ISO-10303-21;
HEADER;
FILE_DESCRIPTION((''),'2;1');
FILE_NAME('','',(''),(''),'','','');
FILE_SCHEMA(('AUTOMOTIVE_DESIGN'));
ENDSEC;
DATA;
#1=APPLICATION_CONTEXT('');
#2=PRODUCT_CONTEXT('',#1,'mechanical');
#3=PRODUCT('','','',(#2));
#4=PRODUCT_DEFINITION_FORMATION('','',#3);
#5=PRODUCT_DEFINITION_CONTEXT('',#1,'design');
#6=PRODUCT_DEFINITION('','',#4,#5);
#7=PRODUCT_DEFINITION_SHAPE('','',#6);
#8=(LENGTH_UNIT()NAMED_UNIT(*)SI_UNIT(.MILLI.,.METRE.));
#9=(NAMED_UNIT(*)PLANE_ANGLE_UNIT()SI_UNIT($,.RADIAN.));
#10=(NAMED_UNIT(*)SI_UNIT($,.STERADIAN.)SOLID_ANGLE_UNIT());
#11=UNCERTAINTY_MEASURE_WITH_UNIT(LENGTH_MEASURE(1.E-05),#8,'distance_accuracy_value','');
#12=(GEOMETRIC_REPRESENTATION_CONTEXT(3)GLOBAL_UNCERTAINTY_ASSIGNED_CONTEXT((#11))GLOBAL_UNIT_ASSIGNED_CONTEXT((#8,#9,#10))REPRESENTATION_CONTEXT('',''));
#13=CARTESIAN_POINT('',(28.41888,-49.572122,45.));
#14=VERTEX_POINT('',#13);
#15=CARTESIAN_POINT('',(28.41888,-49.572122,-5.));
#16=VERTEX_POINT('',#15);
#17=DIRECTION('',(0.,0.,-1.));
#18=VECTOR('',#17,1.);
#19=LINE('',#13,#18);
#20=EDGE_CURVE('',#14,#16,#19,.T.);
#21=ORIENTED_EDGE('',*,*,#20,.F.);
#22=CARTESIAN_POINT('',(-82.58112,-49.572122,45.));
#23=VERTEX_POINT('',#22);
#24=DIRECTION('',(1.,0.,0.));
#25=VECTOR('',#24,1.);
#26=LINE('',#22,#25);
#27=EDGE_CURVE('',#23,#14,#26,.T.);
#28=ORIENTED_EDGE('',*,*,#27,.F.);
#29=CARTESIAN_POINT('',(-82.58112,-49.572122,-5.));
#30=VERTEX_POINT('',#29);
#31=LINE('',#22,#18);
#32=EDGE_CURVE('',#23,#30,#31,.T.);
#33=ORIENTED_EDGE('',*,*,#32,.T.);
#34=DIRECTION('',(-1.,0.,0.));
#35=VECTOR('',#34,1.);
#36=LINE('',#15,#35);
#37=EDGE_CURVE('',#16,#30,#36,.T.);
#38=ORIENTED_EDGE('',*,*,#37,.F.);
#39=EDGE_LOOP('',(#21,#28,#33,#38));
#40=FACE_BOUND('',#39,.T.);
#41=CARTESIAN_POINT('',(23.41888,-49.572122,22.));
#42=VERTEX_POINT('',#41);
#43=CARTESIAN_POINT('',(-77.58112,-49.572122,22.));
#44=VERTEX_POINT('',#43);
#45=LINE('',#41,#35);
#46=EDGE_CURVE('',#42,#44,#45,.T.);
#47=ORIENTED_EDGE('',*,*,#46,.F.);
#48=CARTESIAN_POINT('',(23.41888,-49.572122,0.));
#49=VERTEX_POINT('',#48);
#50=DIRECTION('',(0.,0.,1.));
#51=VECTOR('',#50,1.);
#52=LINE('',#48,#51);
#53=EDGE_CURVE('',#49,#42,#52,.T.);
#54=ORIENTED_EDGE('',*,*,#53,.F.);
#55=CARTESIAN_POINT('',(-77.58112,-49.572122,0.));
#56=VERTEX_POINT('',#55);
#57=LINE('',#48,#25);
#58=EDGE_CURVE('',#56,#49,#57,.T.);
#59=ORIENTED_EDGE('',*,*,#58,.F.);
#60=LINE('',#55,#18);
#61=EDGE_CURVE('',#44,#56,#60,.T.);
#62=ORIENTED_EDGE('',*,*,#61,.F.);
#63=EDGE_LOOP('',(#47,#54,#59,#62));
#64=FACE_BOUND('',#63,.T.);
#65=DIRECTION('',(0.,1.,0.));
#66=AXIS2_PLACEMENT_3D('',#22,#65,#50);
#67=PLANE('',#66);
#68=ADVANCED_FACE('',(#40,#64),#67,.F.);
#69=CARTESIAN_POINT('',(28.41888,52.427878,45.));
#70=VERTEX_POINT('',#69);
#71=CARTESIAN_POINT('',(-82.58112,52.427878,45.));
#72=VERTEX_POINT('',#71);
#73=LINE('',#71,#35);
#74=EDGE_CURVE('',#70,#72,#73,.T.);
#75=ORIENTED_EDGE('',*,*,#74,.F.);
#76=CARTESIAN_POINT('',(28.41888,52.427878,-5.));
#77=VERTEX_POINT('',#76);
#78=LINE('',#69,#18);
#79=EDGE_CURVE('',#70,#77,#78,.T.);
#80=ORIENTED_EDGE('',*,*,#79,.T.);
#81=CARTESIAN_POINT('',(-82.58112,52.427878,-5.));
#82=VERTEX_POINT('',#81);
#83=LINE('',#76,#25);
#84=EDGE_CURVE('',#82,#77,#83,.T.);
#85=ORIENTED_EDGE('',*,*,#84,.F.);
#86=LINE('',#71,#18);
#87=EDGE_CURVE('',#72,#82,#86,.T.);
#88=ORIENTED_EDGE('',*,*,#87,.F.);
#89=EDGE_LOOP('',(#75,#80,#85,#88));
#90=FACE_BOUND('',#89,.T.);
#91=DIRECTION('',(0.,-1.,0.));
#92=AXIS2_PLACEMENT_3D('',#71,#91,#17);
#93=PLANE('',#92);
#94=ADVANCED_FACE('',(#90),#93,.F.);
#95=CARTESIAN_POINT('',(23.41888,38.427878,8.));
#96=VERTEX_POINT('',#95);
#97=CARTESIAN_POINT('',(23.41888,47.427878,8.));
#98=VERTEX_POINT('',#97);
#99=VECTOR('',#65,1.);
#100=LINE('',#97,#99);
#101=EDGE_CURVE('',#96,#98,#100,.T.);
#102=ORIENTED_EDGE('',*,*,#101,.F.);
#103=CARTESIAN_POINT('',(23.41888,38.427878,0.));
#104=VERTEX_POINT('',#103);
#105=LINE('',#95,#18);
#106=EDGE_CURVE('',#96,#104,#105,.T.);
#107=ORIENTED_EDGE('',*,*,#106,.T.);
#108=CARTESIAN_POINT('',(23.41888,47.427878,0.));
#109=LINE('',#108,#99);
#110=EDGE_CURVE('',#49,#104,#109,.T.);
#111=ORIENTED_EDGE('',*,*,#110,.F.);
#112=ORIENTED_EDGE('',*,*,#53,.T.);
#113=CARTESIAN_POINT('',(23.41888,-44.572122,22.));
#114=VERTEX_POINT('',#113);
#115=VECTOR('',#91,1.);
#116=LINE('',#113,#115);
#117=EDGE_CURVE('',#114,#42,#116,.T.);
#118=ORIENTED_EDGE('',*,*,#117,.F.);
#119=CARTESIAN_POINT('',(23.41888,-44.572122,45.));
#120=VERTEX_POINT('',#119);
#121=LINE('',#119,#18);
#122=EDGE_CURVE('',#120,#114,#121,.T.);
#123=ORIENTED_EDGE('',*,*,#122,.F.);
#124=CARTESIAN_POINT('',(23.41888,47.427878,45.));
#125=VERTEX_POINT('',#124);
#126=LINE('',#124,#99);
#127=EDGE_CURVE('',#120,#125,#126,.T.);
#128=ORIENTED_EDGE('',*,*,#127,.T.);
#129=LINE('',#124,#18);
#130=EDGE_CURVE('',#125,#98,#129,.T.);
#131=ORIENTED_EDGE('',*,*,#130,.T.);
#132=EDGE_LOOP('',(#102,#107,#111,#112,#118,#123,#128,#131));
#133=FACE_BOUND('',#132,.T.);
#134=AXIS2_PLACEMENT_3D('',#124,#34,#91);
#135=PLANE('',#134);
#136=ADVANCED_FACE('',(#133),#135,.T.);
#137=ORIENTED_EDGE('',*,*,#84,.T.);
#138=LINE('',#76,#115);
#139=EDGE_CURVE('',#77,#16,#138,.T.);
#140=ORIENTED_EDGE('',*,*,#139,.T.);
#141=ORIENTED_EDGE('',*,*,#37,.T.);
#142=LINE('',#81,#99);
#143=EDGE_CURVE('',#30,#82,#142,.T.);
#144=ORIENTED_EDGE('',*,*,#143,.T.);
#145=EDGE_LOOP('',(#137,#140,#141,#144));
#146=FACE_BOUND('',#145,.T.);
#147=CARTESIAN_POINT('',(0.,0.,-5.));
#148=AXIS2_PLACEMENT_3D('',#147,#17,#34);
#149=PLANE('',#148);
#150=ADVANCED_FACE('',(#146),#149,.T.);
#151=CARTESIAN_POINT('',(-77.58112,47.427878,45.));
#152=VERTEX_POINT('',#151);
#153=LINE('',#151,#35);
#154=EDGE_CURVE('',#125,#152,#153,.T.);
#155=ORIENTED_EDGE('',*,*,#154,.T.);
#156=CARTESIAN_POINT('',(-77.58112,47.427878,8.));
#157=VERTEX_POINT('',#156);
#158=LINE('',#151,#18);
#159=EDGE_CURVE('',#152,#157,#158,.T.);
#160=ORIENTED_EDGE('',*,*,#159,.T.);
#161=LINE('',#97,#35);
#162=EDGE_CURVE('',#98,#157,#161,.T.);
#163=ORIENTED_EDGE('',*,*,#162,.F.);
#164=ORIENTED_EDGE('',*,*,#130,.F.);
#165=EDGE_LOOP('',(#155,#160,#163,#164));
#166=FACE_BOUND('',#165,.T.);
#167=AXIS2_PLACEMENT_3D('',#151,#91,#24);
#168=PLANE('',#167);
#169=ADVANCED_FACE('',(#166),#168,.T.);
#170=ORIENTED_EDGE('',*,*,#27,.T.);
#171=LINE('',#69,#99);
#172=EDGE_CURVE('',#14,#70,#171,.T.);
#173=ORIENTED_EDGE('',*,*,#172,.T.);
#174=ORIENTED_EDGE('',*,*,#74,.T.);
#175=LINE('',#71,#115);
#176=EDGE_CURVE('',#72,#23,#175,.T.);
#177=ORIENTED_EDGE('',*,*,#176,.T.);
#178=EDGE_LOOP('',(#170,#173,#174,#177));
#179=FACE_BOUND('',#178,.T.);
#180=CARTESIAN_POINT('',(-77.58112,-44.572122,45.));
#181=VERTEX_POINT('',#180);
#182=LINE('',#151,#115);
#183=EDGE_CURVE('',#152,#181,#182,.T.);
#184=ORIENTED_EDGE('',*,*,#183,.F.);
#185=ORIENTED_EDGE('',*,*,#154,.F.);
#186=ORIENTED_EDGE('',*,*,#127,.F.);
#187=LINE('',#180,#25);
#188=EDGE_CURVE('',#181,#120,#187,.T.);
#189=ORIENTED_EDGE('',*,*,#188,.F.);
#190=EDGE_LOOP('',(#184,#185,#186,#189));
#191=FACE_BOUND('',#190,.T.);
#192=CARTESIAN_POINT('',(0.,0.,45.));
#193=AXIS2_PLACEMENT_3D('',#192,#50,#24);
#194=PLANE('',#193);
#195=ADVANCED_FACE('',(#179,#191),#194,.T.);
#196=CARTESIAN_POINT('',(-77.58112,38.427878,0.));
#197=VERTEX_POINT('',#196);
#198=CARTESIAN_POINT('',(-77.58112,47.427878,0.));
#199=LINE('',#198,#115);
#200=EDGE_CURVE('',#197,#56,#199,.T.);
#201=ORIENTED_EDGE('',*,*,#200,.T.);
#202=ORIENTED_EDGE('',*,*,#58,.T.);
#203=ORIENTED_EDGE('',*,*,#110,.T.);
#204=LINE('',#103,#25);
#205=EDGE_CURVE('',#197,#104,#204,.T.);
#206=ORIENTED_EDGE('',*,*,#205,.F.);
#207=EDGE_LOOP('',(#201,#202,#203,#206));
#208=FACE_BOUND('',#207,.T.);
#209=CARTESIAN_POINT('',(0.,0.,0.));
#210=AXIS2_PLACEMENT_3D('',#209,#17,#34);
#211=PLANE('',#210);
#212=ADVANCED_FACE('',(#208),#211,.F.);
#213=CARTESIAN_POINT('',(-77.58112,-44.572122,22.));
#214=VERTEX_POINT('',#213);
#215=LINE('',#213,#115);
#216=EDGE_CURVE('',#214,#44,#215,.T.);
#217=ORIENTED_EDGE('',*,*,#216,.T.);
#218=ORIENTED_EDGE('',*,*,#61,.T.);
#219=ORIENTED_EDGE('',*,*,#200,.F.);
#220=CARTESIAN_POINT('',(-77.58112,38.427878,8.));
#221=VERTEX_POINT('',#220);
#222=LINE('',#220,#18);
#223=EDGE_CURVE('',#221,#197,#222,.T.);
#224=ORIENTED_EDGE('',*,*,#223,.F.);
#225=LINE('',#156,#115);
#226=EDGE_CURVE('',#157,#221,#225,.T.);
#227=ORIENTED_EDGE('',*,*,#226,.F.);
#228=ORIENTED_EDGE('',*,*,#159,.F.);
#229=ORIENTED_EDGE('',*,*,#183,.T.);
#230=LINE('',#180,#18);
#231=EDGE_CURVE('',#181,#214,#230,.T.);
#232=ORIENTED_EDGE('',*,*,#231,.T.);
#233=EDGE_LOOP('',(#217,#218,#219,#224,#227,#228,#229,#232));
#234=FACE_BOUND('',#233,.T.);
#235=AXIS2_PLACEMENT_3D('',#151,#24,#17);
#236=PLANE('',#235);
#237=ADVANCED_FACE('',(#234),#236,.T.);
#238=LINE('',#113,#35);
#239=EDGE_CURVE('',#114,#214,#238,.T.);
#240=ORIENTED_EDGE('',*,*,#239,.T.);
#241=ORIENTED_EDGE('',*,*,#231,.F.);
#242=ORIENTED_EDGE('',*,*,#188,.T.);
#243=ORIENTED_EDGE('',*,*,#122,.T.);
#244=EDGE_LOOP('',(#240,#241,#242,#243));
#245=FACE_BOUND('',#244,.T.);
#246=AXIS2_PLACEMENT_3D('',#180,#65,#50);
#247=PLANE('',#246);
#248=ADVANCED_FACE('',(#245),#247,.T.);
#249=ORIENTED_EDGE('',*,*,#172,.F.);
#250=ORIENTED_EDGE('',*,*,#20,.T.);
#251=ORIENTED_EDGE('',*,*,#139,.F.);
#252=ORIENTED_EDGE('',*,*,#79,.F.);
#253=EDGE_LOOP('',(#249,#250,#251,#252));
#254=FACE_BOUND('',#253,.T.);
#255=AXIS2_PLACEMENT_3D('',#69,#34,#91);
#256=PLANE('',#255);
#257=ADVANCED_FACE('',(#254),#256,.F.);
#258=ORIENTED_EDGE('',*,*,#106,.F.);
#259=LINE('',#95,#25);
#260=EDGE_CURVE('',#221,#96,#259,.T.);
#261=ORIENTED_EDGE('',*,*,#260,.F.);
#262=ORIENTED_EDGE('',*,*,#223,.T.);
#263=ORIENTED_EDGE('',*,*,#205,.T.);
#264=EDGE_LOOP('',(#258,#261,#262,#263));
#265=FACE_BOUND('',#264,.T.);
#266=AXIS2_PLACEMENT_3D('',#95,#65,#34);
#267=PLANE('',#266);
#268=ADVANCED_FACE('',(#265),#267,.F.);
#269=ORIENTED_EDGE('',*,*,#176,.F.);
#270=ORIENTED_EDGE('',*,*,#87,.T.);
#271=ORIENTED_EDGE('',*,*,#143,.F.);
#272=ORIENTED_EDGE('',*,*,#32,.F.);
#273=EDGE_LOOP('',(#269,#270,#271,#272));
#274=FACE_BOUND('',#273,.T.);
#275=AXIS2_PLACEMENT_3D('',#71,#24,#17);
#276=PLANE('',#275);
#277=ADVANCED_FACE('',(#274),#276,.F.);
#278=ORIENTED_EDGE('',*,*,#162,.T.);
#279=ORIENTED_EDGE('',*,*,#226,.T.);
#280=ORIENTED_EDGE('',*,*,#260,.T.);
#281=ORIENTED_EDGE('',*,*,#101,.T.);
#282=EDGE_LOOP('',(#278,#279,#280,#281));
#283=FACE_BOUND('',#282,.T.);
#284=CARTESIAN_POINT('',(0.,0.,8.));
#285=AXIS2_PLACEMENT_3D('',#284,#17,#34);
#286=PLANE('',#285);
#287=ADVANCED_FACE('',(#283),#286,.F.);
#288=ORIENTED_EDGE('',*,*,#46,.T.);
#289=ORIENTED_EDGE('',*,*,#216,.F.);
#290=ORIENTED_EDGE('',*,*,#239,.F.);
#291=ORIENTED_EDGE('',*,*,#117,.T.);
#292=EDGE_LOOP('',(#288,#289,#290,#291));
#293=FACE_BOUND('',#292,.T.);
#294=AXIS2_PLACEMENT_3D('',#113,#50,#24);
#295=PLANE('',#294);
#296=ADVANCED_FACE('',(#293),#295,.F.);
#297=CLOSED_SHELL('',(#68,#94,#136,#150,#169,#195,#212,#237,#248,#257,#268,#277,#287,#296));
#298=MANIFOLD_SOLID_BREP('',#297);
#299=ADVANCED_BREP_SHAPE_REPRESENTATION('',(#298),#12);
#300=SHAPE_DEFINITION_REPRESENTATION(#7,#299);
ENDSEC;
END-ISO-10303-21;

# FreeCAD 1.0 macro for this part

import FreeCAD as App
import Part
import Sketcher

V = App.Vector
Q = App.Units.Quantity


def add_polygon(sketch, points):
    """Adds a closed chain of lines whose ends are joined by coincident constraints."""
    first, n = sketch.GeometryCount, len(points)
    for a, b in zip(points, points[1:] + points[:1]):
        sketch.addGeometry(Part.LineSegment(App.Vector(*a, 0), App.Vector(*b, 0)), False)
    for i in range(n):
        sketch.addConstraint(Sketcher.Constraint("Coincident", first + i, 2, first + (i + 1) % n, 1))

doc = App.newDocument("Part")
body = doc.addObject("PartDesign::Body", "Body")

sketch1 = doc.addObject("Sketcher::SketchObject", "Sketch")
body.addObject(sketch1)
sketch1.AttachmentSupport = (doc.XY_Plane, [""])
sketch1.MapMode = "FlatFace"
add_polygon(sketch1, [(-83, 52), (-83, -50), (28, -50), (28, 52)])
add_polygon(sketch1, [(23, -45), (-78, -45), (-78, 47), (23, 47)])
sketch1.addConstraint(Sketcher.Constraint("Vertical", 0))
sketch1.addConstraint(Sketcher.Constraint("Horizontal", 1))
sketch1.addConstraint(Sketcher.Constraint("Vertical", 2))
sketch1.addConstraint(Sketcher.Constraint("Horizontal", 3))
sketch1.addConstraint(Sketcher.Constraint("Horizontal", 4))
sketch1.addConstraint(Sketcher.Constraint("Vertical", 5))
sketch1.addConstraint(Sketcher.Constraint("Horizontal", 6))
sketch1.addConstraint(Sketcher.Constraint("Vertical", 7))
sketch1.addConstraint(Sketcher.Constraint("DistanceX", 1, 1, 1, 2, Q("111 mm")))
sketch1.addConstraint(Sketcher.Constraint("DistanceX", 4, 2, 4, 1, Q("101 mm")))
sketch1.addConstraint(Sketcher.Constraint("DistanceY", 0, 2, 0, 1, Q("102 mm")))
sketch1.addConstraint(Sketcher.Constraint("DistanceY", 5, 1, 5, 2, Q("92 mm")))
sketch1.addConstraint(Sketcher.Constraint("DistanceX", 0, 2, 4, 2, Q("5 mm")))
sketch1.addConstraint(Sketcher.Constraint("DistanceY", 0, 2, 4, 2, Q("5 mm")))
sketch1.addConstraint(Sketcher.Constraint("DistanceX", 0, 2, -1, 1, Q("82.58112 mm")))
sketch1.addConstraint(Sketcher.Constraint("DistanceY", 0, 2, -1, 1, Q("49.572122 mm")))
pad1 = doc.addObject("PartDesign::Pad", "Pad")
body.addObject(pad1)
pad1.Profile = sketch1
pad1.Length = 45

sketch2 = doc.addObject("Sketcher::SketchObject", "Sketch001")
body.addObject(sketch2)
sketch2.AttachmentSupport = (doc.XY_Plane, [""])
sketch2.MapMode = "FlatFace"
add_polygon(sketch2, [(28, 52), (28, -50), (-83, -50), (-83, 52)])
sketch2.addConstraint(Sketcher.Constraint("Vertical", 0))
sketch2.addConstraint(Sketcher.Constraint("Horizontal", 1))
sketch2.addConstraint(Sketcher.Constraint("Vertical", 2))
sketch2.addConstraint(Sketcher.Constraint("Horizontal", 3))
sketch2.addConstraint(Sketcher.Constraint("DistanceX", 1, 2, 1, 1, Q("111 mm")))
sketch2.addConstraint(Sketcher.Constraint("DistanceY", 0, 2, 0, 1, Q("102 mm")))
sketch2.addConstraint(Sketcher.Constraint("DistanceX", -1, 1, 0, 2, Q("28.41888 mm")))
sketch2.addConstraint(Sketcher.Constraint("DistanceY", 0, 2, -1, 1, Q("49.572122 mm")))
pad2 = doc.addObject("PartDesign::Pad", "Pad001")
body.addObject(pad2)
pad2.Profile = sketch2
pad2.Length = 5
pad2.Reversed = True

sketch3 = doc.addObject("Sketcher::SketchObject", "Sketch002")
body.addObject(sketch3)
sketch3.AttachmentSupport = (doc.XZ_Plane, [""])
sketch3.MapMode = "FlatFace"
sketch3.AttachmentOffset = App.Placement(V(0, 0, 49.572122), App.Rotation())
add_polygon(sketch3, [(-78, 22), (-78, 0), (23, 0), (23, 22)])
sketch3.addConstraint(Sketcher.Constraint("Vertical", 0))
sketch3.addConstraint(Sketcher.Constraint("Horizontal", 1))
sketch3.addConstraint(Sketcher.Constraint("Vertical", 2))
sketch3.addConstraint(Sketcher.Constraint("Horizontal", 3))
sketch3.addConstraint(Sketcher.Constraint("PointOnObject", 0, 2, -1))
sketch3.addConstraint(Sketcher.Constraint("DistanceX", 1, 1, 1, 2, Q("101 mm")))
sketch3.addConstraint(Sketcher.Constraint("DistanceY", 0, 2, 0, 1, Q("22 mm")))
sketch3.addConstraint(Sketcher.Constraint("DistanceX", 0, 2, -1, 1, Q("77.58112 mm")))
pocket1 = doc.addObject("PartDesign::Pocket", "Pocket")
body.addObject(pocket1)
pocket1.Profile = sketch3
pocket1.Length = 5

sketch4 = doc.addObject("Sketcher::SketchObject", "Sketch003")
body.addObject(sketch4)
sketch4.AttachmentSupport = (doc.XY_Plane, [""])
sketch4.MapMode = "FlatFace"
add_polygon(sketch4, [(-78, 47), (-78, 38), (23, 38), (23, 47)])
sketch4.addConstraint(Sketcher.Constraint("Vertical", 0))
sketch4.addConstraint(Sketcher.Constraint("Horizontal", 1))
sketch4.addConstraint(Sketcher.Constraint("Vertical", 2))
sketch4.addConstraint(Sketcher.Constraint("Horizontal", 3))
sketch4.addConstraint(Sketcher.Constraint("DistanceX", 1, 1, 1, 2, Q("101 mm")))
sketch4.addConstraint(Sketcher.Constraint("DistanceY", 0, 2, 0, 1, Q("9 mm")))
sketch4.addConstraint(Sketcher.Constraint("DistanceX", 0, 2, -1, 1, Q("77.58112 mm")))
sketch4.addConstraint(Sketcher.Constraint("DistanceY", -1, 1, 0, 2, Q("38.427878 mm")))
pad3 = doc.addObject("PartDesign::Pad", "Pad002")
body.addObject(pad3)
pad3.Profile = sketch4
pad3.Length = 8

doc.recompute()
